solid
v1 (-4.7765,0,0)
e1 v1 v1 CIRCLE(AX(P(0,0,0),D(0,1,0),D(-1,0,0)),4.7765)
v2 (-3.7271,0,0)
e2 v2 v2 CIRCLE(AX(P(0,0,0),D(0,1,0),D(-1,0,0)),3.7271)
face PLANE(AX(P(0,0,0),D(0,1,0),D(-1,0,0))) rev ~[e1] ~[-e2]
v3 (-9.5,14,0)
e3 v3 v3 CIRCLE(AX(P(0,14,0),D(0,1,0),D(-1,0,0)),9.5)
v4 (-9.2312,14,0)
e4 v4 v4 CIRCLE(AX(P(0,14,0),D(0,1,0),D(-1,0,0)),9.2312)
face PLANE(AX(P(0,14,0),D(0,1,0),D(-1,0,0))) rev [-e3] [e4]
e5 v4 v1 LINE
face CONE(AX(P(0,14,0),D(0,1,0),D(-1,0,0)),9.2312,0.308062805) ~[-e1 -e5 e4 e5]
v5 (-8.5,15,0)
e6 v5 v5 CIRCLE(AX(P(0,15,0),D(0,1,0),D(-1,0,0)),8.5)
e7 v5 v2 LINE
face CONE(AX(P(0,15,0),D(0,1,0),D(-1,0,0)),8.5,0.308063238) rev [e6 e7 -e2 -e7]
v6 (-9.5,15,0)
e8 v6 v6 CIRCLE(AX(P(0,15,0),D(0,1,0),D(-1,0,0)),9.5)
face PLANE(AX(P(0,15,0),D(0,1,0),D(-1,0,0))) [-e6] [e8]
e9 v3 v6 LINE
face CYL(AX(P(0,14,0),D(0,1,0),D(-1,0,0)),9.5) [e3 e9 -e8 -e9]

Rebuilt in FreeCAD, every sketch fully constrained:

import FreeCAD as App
import Part
import Sketcher
Q = App.Units.Quantity

doc = App.newDocument("Part")
body = doc.addObject("PartDesign::Body", "Body")

sketch1 = body.newObject("Sketcher::SketchObject", "Sketch")
sketch1.AttachmentSupport = (doc.getObject("XY_Plane"), [""])
sketch1.MapMode = "FlatFace"
sketch1.addGeometry(Part.LineSegment(App.Vector(-8.5, 15, 0), App.Vector(-9.5, 15, 0)), False)
sketch1.addGeometry(Part.LineSegment(App.Vector(-9.5, 15, 0), App.Vector(-9.5, 14, 0)), False)
sketch1.addGeometry(Part.LineSegment(App.Vector(-9.5, 14, 0), App.Vector(-9.23, 14, 0)), False)
sketch1.addGeometry(Part.LineSegment(App.Vector(-9.23, 14, 0), App.Vector(-4.78, 0, 0)), False)
sketch1.addGeometry(Part.LineSegment(App.Vector(-4.78, 0, 0), App.Vector(-3.73, 0, 0)), False)
sketch1.addGeometry(Part.LineSegment(App.Vector(-3.73, 0, 0), App.Vector(-8.5, 15, 0)), False)
sketch1.addConstraint(Sketcher.Constraint("Coincident", 0, 2, 1, 1))
sketch1.addConstraint(Sketcher.Constraint("Coincident", 1, 2, 2, 1))
sketch1.addConstraint(Sketcher.Constraint("Coincident", 2, 2, 3, 1))
sketch1.addConstraint(Sketcher.Constraint("Coincident", 3, 2, 4, 1))
sketch1.addConstraint(Sketcher.Constraint("Coincident", 4, 2, 5, 1))
sketch1.addConstraint(Sketcher.Constraint("Coincident", 5, 2, 0, 1))
sketch1.addConstraint(Sketcher.Constraint("Horizontal", 0))
sketch1.addConstraint(Sketcher.Constraint("Vertical", 1))
sketch1.addConstraint(Sketcher.Constraint("Horizontal", 2))
sketch1.addConstraint(Sketcher.Constraint("Horizontal", 4))
sketch1.addConstraint(Sketcher.Constraint("PointOnObject", 3, 2, -1))
sketch1.addConstraint(Sketcher.Constraint("Parallel", 3, 5))
sketch1.addConstraint(Sketcher.Constraint("Equal", 0, 1))
sketch1.addConstraint(Sketcher.Constraint("DistanceX", 0, 2, 0, 1, 1.0))
sketch1.addConstraint(Sketcher.Constraint("DistanceY", -1, 1, 0, 2, 15.0))
sketch1.addConstraint(Sketcher.Constraint("DistanceX", 0, 2, -1, 1, 9.5))
sketch1.addConstraint(Sketcher.Constraint("Angle", 3, Q("-72.3493 deg")))
sketch1.addConstraint(Sketcher.Constraint("DistanceX", 2, 1, 2, 2, 0.2688))
revolution = body.newObject("PartDesign::Revolution", "Revolution")
revolution.Profile = sketch1
revolution.ReferenceAxis = (sketch1, ["V_Axis"])
revolution.Angle = 360

doc.recompute()
